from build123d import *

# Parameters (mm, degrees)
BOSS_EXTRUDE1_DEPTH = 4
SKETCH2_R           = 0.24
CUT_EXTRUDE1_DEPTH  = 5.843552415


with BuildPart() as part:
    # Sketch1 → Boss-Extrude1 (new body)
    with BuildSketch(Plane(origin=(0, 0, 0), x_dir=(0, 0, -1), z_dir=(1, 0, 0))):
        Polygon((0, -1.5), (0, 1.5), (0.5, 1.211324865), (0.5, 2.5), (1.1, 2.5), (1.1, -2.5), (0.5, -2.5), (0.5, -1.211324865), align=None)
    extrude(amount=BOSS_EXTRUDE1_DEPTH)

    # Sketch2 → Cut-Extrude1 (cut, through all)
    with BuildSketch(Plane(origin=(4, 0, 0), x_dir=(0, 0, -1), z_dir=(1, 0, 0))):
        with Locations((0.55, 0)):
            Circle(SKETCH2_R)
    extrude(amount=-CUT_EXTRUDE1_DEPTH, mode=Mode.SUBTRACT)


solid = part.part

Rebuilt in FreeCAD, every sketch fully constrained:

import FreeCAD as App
import Part
import Sketcher
from FreeCAD import Vector
Q = App.Units.Quantity

doc = App.newDocument("Part")
body = doc.addObject("PartDesign::Body", "Body")

sketch1 = body.newObject("Sketcher::SketchObject", "Sketch")
sketch1.AttachmentSupport = (doc.getObject("YZ_Plane"), [""])
sketch1.MapMode = "FlatFace"
sketch1.addGeometry(Part.LineSegment(Vector(1.5, 0, 0), Vector(-1.5, 0, 0)), False)
sketch1.addGeometry(Part.LineSegment(Vector(-1.5, 0, 0), Vector(-1.211325, -0.5, 0)), False)
sketch1.addGeometry(Part.LineSegment(Vector(-1.211325, -0.5, 0), Vector(-2.5, -0.5, 0)), False)
sketch1.addGeometry(Part.LineSegment(Vector(-2.5, -0.5, 0), Vector(-2.5, -1.1, 0)), False)
sketch1.addGeometry(Part.LineSegment(Vector(-2.5, -1.1, 0), Vector(2.5, -1.1, 0)), False)
sketch1.addGeometry(Part.LineSegment(Vector(2.5, -1.1, 0), Vector(2.5, -0.5, 0)), False)
sketch1.addGeometry(Part.LineSegment(Vector(2.5, -0.5, 0), Vector(1.211325, -0.5, 0)), False)
sketch1.addGeometry(Part.LineSegment(Vector(1.211325, -0.5, 0), Vector(1.5, 0, 0)), False)
sketch1.addConstraint(Sketcher.Constraint("Coincident", 0, 2, 1, 1))
sketch1.addConstraint(Sketcher.Constraint("Coincident", 1, 2, 2, 1))
sketch1.addConstraint(Sketcher.Constraint("Coincident", 2, 2, 3, 1))
sketch1.addConstraint(Sketcher.Constraint("Coincident", 3, 2, 4, 1))
sketch1.addConstraint(Sketcher.Constraint("Coincident", 4, 2, 5, 1))
sketch1.addConstraint(Sketcher.Constraint("Coincident", 5, 2, 6, 1))
sketch1.addConstraint(Sketcher.Constraint("Coincident", 6, 2, 7, 1))
sketch1.addConstraint(Sketcher.Constraint("Coincident", 7, 2, 0, 1))
sketch1.addConstraint(Sketcher.Constraint("Horizontal", 0))
sketch1.addConstraint(Sketcher.Constraint("Horizontal", 2))
sketch1.addConstraint(Sketcher.Constraint("Vertical", 3))
sketch1.addConstraint(Sketcher.Constraint("Horizontal", 4))
sketch1.addConstraint(Sketcher.Constraint("Vertical", 5))
sketch1.addConstraint(Sketcher.Constraint("Horizontal", 6))
sketch1.addConstraint(Sketcher.Constraint("Symmetric", 0, 2, 7, 2, -1, 1))
sketch1.addConstraint(Sketcher.Constraint("Symmetric", 2, 2, 5, 2, -2))
sketch1.addConstraint(Sketcher.Constraint("Equal", 2, 6))
sketch1.addConstraint(Sketcher.Constraint("DistanceX", 0, 2, 0, 1, 3.0))
sketch1.addConstraint(Sketcher.Constraint("DistanceX", 4, 1, 4, 2, 5.0))
sketch1.addConstraint(Sketcher.Constraint("Angle", 1, Q("-60 deg")))
sketch1.addConstraint(Sketcher.Constraint("DistanceY", 3, 2, 3, 1, 0.6))
sketch1.addConstraint(Sketcher.Constraint("DistanceY", 1, 2, -1, 1, 0.5))
pad1 = body.newObject("PartDesign::Pad", "Pad")
pad1.Profile = sketch1
pad1.Length = 4

sketch2 = body.newObject("Sketcher::SketchObject", "Sketch001")
sketch2.AttachmentSupport = (doc.getObject("YZ_Plane"), [""])
sketch2.MapMode = "FlatFace"
sketch2.AttachmentOffset = App.Placement(Vector(0, 0, 4), App.Rotation())
sketch2.addGeometry(Part.Circle(Vector(0, -0.55, 0), Vector(0, 0, 1), 0.24), False)
sketch2.addConstraint(Sketcher.Constraint("PointOnObject", 0, 3, -2))
sketch2.addConstraint(Sketcher.Constraint("Diameter", 0, 0.48))
sketch2.addConstraint(Sketcher.Constraint("DistanceY", 0, 3, -1, 1, 0.55))
pocket1 = body.newObject("PartDesign::Pocket", "Pocket")
pocket1.Profile = sketch2
pocket1.Type = "ThroughAll"

doc.recompute()
